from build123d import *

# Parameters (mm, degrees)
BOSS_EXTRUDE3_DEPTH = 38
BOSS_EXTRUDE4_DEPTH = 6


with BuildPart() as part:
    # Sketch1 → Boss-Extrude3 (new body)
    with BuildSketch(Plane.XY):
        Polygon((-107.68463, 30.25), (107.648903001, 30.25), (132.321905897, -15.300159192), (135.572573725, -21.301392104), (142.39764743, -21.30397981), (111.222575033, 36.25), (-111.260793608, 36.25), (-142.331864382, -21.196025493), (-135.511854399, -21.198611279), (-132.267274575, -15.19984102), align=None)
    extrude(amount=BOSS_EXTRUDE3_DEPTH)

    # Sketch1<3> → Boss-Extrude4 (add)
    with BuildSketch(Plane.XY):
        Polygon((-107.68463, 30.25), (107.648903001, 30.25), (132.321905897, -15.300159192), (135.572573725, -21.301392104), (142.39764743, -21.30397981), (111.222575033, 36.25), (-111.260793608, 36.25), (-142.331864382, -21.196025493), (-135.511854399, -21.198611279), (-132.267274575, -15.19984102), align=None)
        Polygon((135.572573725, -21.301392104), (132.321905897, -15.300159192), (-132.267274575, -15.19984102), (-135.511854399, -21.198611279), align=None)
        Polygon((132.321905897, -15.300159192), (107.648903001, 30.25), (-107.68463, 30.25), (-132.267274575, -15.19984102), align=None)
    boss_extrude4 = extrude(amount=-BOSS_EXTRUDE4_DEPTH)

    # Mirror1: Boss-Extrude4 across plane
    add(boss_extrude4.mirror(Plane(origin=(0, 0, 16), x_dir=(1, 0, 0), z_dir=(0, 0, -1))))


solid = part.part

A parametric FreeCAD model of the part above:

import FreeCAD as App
import Part
import Sketcher

V = App.Vector


def add_polygon(sketch, points):
    """Adds a closed chain of lines whose ends are joined by coincident constraints."""
    first, n = sketch.GeometryCount, len(points)
    for a, b in zip(points, points[1:] + points[:1]):
        sketch.addGeometry(Part.LineSegment(App.Vector(*a, 0), App.Vector(*b, 0)), False)
    for i in range(n):
        sketch.addConstraint(Sketcher.Constraint("Coincident", first + i, 2, first + (i + 1) % n, 1))

doc = App.newDocument("Part")
body = doc.addObject("PartDesign::Body", "Body")

# Sketch on XY plane
sketch1 = body.newObject("Sketcher::SketchObject", "Sketch")
sketch1.AttachmentSupport = (doc.getObject("XY_Plane"), [""])
sketch1.MapMode = "FlatFace"
add_polygon(sketch1, [(-108, 30), (108, 30), (132, -15), (136, -21), (142, -21), (111, 36), (-111, 36), (-142, -21), (-136, -21), (-132, -15)])  # lines 0-9
sketch1.addConstraint([
    Sketcher.Constraint("Horizontal", 0),
    Sketcher.Constraint("Horizontal", 5),
    Sketcher.Constraint("Parallel", 1, 2),
    Sketcher.Constraint("Parallel", 2, 4),
    Sketcher.Constraint("Parallel", 3, 7),
    Sketcher.Constraint("Parallel", 6, 8),
    Sketcher.Constraint("Parallel", 8, 9),
    Sketcher.Constraint("Equal", 2, 3),
    Sketcher.Constraint("Equal", 7, 8),
    Sketcher.Constraint("DistanceY", 0, 2, 4, 2, 6.0),
    Sketcher.Constraint("DistanceY", -1, 1, 0, 2, 30.25),
    Sketcher.Constraint("DistanceX", 4, 2, 2, 2, 24.349999),
    Sketcher.Constraint("DistanceX", 5, 2, 5, 1, 222.483369),
    Sketcher.Constraint("DistanceX", 5, 2, 1, 2, 243.5827),
    Sketcher.Constraint("Distance", 6, 65.310468),
    Sketcher.Constraint("Distance", 7, 6.82001),
    Sketcher.Constraint("Distance", 9, 51.671989),
    Sketcher.Constraint("DistanceX", 0, 1, 0, 2, 215.333533),
    Sketcher.Constraint("DistanceY", 1, 2, -1, 1, 15.300159),
    Sketcher.Constraint("DistanceX", 9, 2, -1, 1, 107.68463),
])
pad1 = body.newObject("PartDesign::Pad", "Pad")
pad1.Profile = sketch1
pad1.Length = 38

# Sketch on XY plane
sketch2 = body.newObject("Sketcher::SketchObject", "Sketch001")
sketch2.AttachmentSupport = (doc.getObject("XY_Plane"), [""])
sketch2.MapMode = "FlatFace"
add_polygon(sketch2, [(136, -21), (142, -21), (111, 36), (-111, 36), (-142, -21), (-136, -21)])  # lines 0-5
sketch2.addConstraint([
    Sketcher.Constraint("Horizontal", 2),
    Sketcher.Constraint("Parallel", 0, 4),
    Sketcher.Constraint("Parallel", 4, 5),
    Sketcher.Constraint("DistanceY", -1, 1, 1, 2, 36.25),
    Sketcher.Constraint("DistanceX", 1, 2, 5, 2, 24.349999),
    Sketcher.Constraint("DistanceX", 2, 2, 2, 1, 222.483369),
    Sketcher.Constraint("DistanceX", 4, 2, 0, 2, 277.909502),
    Sketcher.Constraint("Distance", 3, 65.310468),
    Sketcher.Constraint("Distance", 4, 6.82001),
    Sketcher.Constraint("DistanceY", 0, 2, -1, 1, 21.30398),
    Sketcher.Constraint("DistanceY", 4, 2, -1, 1, 21.198611),
    Sketcher.Constraint("DistanceX", -1, 1, 0, 2, 142.397647),
])
pad2 = body.newObject("PartDesign::Pad", "Pad001")
pad2.Profile = sketch2
pad2.Length = 6
pad2.Reversed = True
doc.recompute()

datumplane = body.newObject("PartDesign::Plane", "DatumPlane")
datumplane.AttachmentSupport = (doc.getObject("XY_Plane"), [""])
datumplane.MapMode = "FlatFace"
datumplane.AttachmentOffset = App.Placement(V(0, 0, 16), App.Rotation())
mirrored = body.newObject("PartDesign::Mirrored", "Mirrored")
mirrored.Originals = [pad2]
mirrored.MirrorPlane = (datumplane, [""])
body.Tip = mirrored

doc.recompute()
